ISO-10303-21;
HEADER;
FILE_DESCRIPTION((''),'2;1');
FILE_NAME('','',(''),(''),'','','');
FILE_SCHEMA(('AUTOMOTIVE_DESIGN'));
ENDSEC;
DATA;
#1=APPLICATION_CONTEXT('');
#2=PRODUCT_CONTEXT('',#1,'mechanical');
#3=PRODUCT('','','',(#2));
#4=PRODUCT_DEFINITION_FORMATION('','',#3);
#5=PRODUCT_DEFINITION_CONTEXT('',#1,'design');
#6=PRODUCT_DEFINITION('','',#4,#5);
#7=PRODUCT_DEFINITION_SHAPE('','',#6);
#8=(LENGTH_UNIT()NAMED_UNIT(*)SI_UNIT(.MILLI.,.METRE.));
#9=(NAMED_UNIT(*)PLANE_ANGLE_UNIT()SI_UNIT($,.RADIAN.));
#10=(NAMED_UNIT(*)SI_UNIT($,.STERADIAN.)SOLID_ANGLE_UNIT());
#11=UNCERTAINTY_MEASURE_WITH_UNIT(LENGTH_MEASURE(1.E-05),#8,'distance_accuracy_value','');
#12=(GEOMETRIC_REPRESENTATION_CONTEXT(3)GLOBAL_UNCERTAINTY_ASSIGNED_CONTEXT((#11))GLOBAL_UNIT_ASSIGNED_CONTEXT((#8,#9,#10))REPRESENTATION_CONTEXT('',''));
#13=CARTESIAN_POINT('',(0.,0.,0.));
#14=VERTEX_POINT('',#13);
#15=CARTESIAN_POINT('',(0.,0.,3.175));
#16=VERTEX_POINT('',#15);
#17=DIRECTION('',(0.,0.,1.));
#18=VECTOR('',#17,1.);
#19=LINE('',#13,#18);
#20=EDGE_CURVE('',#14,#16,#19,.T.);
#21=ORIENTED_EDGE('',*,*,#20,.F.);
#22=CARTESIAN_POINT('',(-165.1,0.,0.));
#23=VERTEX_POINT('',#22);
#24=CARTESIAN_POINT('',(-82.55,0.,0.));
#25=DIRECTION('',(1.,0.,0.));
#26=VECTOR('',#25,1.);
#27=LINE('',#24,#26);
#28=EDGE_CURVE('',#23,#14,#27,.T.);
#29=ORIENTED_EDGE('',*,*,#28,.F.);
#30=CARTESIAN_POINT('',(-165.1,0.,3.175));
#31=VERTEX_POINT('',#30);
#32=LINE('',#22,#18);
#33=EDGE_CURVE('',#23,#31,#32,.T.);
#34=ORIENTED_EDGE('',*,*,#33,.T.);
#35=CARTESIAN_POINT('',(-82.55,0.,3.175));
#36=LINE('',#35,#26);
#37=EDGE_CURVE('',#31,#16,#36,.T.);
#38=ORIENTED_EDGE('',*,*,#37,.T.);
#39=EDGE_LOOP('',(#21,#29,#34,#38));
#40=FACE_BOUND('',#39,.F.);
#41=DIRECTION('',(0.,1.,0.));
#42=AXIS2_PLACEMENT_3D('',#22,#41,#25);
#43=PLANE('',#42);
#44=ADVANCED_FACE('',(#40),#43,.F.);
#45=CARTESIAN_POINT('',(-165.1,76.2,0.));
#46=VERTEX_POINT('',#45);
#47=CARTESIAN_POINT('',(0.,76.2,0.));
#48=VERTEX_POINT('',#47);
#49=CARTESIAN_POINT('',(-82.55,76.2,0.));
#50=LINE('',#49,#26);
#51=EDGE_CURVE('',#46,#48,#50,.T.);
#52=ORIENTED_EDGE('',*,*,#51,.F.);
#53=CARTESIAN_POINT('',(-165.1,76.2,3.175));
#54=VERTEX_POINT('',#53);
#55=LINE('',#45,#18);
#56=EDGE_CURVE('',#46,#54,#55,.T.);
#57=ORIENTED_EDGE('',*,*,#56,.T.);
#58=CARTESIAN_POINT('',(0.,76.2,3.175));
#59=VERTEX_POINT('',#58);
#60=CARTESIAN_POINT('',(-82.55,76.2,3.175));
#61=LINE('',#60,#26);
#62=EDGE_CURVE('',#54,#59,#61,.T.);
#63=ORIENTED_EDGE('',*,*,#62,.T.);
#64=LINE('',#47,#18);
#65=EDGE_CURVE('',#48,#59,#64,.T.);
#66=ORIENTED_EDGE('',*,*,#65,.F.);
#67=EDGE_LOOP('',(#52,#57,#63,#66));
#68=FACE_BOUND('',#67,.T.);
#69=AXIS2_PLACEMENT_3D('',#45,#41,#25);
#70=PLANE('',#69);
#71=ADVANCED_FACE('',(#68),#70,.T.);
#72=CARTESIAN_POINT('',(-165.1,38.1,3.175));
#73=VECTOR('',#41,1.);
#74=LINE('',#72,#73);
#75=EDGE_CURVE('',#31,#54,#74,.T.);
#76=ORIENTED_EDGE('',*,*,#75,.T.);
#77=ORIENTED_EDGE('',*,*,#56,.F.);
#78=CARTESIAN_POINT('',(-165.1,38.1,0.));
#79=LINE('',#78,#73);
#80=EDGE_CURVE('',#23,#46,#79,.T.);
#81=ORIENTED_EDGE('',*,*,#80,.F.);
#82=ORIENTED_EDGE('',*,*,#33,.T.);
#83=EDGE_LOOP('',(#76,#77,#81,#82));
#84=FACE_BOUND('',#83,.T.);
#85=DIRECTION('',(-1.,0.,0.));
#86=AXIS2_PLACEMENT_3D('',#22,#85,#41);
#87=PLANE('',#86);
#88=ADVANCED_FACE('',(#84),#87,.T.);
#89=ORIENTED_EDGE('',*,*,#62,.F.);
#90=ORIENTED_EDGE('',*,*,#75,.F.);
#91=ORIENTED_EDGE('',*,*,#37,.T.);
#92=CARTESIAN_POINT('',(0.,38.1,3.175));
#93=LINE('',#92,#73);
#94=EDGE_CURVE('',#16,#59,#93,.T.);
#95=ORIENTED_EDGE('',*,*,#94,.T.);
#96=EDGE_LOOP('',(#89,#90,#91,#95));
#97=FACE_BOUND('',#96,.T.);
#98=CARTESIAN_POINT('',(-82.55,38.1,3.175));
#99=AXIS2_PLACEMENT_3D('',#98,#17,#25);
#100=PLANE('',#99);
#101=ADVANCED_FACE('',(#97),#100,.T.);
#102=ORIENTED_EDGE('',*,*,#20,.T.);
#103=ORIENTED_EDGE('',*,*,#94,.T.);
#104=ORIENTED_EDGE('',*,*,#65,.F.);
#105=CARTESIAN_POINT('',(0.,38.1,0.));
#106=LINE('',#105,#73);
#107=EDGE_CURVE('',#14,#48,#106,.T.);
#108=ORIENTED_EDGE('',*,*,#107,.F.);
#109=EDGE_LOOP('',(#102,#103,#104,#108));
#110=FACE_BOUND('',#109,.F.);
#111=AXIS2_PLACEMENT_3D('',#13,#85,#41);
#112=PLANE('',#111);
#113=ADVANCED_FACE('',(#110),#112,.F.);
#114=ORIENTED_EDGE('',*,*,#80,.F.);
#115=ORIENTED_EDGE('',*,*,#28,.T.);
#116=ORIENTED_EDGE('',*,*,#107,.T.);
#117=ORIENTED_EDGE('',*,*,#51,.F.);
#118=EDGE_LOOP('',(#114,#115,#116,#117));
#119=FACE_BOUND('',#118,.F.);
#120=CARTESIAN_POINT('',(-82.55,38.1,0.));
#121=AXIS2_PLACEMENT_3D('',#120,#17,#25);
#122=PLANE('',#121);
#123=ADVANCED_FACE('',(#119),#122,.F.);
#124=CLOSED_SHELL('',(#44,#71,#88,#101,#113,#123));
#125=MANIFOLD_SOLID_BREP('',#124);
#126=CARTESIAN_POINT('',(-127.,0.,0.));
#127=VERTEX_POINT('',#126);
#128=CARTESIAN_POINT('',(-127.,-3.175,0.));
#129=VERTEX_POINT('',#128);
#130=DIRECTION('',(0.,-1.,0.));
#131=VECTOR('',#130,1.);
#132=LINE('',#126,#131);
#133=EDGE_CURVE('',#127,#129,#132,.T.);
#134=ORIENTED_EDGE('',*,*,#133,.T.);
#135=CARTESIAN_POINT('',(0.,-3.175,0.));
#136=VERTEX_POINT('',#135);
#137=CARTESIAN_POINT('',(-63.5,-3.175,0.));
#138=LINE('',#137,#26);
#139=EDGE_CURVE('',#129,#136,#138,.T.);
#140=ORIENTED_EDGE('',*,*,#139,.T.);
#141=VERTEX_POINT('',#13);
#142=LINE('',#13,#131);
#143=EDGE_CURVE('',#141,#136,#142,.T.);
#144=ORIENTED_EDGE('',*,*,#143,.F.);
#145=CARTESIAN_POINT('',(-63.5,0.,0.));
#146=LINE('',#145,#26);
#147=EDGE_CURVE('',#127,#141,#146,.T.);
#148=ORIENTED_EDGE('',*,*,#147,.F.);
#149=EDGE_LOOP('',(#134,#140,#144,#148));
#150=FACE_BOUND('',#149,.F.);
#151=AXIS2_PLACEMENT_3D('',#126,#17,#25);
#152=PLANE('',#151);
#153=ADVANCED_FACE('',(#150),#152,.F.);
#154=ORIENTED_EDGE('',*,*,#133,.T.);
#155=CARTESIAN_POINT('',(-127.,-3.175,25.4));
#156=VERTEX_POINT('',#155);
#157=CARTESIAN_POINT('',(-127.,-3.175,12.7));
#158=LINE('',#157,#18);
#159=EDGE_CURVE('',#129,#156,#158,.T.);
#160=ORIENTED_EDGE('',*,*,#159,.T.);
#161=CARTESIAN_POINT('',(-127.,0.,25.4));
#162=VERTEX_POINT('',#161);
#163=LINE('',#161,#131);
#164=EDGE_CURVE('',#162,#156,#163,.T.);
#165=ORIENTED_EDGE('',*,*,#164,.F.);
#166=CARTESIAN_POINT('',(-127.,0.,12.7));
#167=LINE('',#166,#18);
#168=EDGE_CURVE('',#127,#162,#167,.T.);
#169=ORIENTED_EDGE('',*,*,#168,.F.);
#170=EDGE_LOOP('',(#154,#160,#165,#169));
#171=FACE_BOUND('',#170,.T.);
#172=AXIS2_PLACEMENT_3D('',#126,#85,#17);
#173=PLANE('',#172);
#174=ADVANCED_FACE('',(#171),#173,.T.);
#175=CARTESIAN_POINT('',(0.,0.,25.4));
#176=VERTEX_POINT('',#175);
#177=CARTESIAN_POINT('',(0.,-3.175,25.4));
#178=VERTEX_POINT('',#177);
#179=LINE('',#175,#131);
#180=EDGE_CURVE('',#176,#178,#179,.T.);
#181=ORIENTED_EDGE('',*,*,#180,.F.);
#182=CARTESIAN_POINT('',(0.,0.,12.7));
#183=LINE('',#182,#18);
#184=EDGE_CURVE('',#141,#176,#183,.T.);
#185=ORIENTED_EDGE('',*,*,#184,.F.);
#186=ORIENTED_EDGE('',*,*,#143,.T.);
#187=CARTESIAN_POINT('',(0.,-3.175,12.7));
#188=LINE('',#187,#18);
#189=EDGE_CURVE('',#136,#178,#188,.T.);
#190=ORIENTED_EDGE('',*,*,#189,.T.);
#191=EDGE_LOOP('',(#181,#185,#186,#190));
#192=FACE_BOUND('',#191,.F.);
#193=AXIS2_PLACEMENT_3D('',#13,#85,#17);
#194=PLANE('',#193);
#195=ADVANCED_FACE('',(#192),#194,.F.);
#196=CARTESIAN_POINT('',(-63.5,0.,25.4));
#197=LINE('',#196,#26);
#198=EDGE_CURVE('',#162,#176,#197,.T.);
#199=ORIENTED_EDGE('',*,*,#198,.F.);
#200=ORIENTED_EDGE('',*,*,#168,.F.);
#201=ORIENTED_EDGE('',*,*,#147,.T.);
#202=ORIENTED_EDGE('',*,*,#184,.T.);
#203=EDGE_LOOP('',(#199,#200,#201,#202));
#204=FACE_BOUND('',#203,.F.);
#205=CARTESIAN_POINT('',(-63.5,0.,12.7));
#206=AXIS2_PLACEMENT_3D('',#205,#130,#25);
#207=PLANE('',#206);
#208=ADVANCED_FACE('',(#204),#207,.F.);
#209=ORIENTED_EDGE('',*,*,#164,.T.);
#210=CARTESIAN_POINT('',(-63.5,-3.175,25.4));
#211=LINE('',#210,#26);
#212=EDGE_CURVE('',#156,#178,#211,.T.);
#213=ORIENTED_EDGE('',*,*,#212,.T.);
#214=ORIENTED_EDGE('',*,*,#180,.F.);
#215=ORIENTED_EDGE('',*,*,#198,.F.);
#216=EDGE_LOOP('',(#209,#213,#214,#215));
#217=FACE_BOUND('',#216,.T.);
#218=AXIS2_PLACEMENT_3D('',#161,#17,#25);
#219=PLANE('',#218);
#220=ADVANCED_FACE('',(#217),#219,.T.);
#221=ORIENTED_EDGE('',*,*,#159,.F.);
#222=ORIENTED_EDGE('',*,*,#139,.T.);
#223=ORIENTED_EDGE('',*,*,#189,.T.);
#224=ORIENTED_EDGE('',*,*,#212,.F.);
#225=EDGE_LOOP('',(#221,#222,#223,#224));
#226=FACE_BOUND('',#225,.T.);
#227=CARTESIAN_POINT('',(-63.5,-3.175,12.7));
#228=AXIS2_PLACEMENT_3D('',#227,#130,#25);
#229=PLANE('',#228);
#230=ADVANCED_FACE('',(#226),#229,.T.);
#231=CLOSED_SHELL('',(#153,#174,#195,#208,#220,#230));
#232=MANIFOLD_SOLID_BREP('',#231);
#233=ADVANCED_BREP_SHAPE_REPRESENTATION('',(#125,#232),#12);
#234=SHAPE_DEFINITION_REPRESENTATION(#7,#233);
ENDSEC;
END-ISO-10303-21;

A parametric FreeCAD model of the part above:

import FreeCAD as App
import Part
import Sketcher
Q = App.Units.Quantity

doc = App.newDocument("Part")
body = doc.addObject("PartDesign::Body", "Body")

sketch1 = body.newObject("Sketcher::SketchObject", "Sketch")
sketch1.AttachmentSupport = (doc.getObject("XY_Plane"), [""])
sketch1.MapMode = "FlatFace"
sketch1.addGeometry([
    Part.LineSegment(App.Vector(-165.1, 76.2, 0), App.Vector(-165.1, 0, 0)),
    Part.LineSegment(App.Vector(-165.1, 0, 0), App.Vector(0, 0, 0)),
    Part.LineSegment(App.Vector(0, 0, 0), App.Vector(0, 76.2, 0)),
    Part.LineSegment(App.Vector(0, 76.2, 0), App.Vector(-165.1, 76.2, 0)),
], False)
sketch1.addConstraint([
    Sketcher.Constraint("Coincident", 0, 2, 1, 1),
    Sketcher.Constraint("Coincident", 1, 2, 2, 1),
    Sketcher.Constraint("Coincident", 2, 2, 3, 1),
    Sketcher.Constraint("Coincident", 3, 2, 0, 1),
    Sketcher.Constraint("Vertical", 0),
    Sketcher.Constraint("Horizontal", 1),
    Sketcher.Constraint("Vertical", 2),
    Sketcher.Constraint("Horizontal", 3),
    Sketcher.Constraint("Coincident", 1, 2, -1, 1),
    Sketcher.Constraint("DistanceY", 0, 2, 0, 1, Q("3 in")),
    Sketcher.Constraint("DistanceX", 1, 1, 1, 2, Q("6.5 in")),
])
pad1 = body.newObject("PartDesign::Pad", "Pad")
pad1.Profile = sketch1
pad1.Length = Q("0.125 in")
body2 = doc.addObject("PartDesign::Body", "Body001")

sketch2 = body2.newObject("Sketcher::SketchObject", "Sketch001")
sketch2.AttachmentSupport = (doc.getObject("XZ_Plane001"), [""])
sketch2.MapMode = "FlatFace"
sketch2.addGeometry([
    Part.LineSegment(App.Vector(-127, 25.4, 0), App.Vector(-127, 0, 0)),
    Part.LineSegment(App.Vector(-127, 0, 0), App.Vector(0, 0, 0)),
    Part.LineSegment(App.Vector(0, 0, 0), App.Vector(0, 25.4, 0)),
    Part.LineSegment(App.Vector(0, 25.4, 0), App.Vector(-127, 25.4, 0)),
], False)
sketch2.addConstraint([
    Sketcher.Constraint("Coincident", 0, 2, 1, 1),
    Sketcher.Constraint("Coincident", 1, 2, 2, 1),
    Sketcher.Constraint("Coincident", 2, 2, 3, 1),
    Sketcher.Constraint("Coincident", 3, 2, 0, 1),
    Sketcher.Constraint("Vertical", 0),
    Sketcher.Constraint("Horizontal", 1),
    Sketcher.Constraint("Vertical", 2),
    Sketcher.Constraint("Horizontal", 3),
    Sketcher.Constraint("Coincident", 1, 2, -1, 1),
    Sketcher.Constraint("DistanceX", 1, 1, 1, 2, Q("5 in")),
    Sketcher.Constraint("DistanceY", 0, 2, 0, 1, Q("1 in")),
])
pad2 = body2.newObject("PartDesign::Pad", "Pad001")
pad2.Profile = sketch2
pad2.Length = Q("0.125 in")

doc.recompute()
